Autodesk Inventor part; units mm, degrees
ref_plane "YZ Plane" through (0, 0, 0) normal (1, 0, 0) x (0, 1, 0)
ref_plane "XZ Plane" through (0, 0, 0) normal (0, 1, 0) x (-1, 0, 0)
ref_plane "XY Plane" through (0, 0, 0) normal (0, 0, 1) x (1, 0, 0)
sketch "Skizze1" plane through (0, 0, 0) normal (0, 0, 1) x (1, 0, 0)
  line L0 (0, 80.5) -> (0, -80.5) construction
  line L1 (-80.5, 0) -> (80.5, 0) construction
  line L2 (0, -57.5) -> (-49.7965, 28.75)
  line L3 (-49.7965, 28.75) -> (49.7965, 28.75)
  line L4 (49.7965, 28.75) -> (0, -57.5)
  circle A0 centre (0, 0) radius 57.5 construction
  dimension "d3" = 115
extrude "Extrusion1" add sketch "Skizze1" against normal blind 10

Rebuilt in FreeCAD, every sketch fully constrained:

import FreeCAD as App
import Part
import Sketcher
Q = App.Units.Quantity


def add_polygon(sketch, points):
    """Adds a closed chain of lines whose ends are joined by coincident constraints."""
    first, n = sketch.GeometryCount, len(points)
    for a, b in zip(points, points[1:] + points[:1]):
        sketch.addGeometry(Part.LineSegment(App.Vector(*a, 0), App.Vector(*b, 0)), False)
    for i in range(n):
        sketch.addConstraint(Sketcher.Constraint("Coincident", first + i, 2, first + (i + 1) % n, 1))

doc = App.newDocument("Part")
body = doc.addObject("PartDesign::Body", "Body")

# Sketch on XY plane
sketch1 = body.newObject("Sketcher::SketchObject", "Sketch")
sketch1.AttachmentSupport = (doc.getObject("XY_Plane"), [""])
sketch1.MapMode = "FlatFace"
add_polygon(sketch1, [(-49.7965, 28.75), (0, -57.5), (49.7965, 28.75)])  # lines 0-2
sketch1.addConstraint(Sketcher.Constraint("Horizontal", 2))
sketch1.addConstraint(Sketcher.Constraint("PointOnObject", 0, 2, -2))
sketch1.addConstraint(Sketcher.Constraint("Equal", 0, 1))
sketch1.addConstraint(Sketcher.Constraint("Angle", 0, Q("-60 deg")))
sketch1.addConstraint(Sketcher.Constraint("DistanceY", 0, 2, -1, 1, Q("57.5 mm")))
sketch1.addConstraint(Sketcher.Constraint("DistanceX", 2, 2, 2, 1, Q("99.593 mm")))
pad1 = body.newObject("PartDesign::Pad", "Pad")
pad1.Profile = sketch1
pad1.Length = 10
pad1.Reversed = True

doc.recompute()
